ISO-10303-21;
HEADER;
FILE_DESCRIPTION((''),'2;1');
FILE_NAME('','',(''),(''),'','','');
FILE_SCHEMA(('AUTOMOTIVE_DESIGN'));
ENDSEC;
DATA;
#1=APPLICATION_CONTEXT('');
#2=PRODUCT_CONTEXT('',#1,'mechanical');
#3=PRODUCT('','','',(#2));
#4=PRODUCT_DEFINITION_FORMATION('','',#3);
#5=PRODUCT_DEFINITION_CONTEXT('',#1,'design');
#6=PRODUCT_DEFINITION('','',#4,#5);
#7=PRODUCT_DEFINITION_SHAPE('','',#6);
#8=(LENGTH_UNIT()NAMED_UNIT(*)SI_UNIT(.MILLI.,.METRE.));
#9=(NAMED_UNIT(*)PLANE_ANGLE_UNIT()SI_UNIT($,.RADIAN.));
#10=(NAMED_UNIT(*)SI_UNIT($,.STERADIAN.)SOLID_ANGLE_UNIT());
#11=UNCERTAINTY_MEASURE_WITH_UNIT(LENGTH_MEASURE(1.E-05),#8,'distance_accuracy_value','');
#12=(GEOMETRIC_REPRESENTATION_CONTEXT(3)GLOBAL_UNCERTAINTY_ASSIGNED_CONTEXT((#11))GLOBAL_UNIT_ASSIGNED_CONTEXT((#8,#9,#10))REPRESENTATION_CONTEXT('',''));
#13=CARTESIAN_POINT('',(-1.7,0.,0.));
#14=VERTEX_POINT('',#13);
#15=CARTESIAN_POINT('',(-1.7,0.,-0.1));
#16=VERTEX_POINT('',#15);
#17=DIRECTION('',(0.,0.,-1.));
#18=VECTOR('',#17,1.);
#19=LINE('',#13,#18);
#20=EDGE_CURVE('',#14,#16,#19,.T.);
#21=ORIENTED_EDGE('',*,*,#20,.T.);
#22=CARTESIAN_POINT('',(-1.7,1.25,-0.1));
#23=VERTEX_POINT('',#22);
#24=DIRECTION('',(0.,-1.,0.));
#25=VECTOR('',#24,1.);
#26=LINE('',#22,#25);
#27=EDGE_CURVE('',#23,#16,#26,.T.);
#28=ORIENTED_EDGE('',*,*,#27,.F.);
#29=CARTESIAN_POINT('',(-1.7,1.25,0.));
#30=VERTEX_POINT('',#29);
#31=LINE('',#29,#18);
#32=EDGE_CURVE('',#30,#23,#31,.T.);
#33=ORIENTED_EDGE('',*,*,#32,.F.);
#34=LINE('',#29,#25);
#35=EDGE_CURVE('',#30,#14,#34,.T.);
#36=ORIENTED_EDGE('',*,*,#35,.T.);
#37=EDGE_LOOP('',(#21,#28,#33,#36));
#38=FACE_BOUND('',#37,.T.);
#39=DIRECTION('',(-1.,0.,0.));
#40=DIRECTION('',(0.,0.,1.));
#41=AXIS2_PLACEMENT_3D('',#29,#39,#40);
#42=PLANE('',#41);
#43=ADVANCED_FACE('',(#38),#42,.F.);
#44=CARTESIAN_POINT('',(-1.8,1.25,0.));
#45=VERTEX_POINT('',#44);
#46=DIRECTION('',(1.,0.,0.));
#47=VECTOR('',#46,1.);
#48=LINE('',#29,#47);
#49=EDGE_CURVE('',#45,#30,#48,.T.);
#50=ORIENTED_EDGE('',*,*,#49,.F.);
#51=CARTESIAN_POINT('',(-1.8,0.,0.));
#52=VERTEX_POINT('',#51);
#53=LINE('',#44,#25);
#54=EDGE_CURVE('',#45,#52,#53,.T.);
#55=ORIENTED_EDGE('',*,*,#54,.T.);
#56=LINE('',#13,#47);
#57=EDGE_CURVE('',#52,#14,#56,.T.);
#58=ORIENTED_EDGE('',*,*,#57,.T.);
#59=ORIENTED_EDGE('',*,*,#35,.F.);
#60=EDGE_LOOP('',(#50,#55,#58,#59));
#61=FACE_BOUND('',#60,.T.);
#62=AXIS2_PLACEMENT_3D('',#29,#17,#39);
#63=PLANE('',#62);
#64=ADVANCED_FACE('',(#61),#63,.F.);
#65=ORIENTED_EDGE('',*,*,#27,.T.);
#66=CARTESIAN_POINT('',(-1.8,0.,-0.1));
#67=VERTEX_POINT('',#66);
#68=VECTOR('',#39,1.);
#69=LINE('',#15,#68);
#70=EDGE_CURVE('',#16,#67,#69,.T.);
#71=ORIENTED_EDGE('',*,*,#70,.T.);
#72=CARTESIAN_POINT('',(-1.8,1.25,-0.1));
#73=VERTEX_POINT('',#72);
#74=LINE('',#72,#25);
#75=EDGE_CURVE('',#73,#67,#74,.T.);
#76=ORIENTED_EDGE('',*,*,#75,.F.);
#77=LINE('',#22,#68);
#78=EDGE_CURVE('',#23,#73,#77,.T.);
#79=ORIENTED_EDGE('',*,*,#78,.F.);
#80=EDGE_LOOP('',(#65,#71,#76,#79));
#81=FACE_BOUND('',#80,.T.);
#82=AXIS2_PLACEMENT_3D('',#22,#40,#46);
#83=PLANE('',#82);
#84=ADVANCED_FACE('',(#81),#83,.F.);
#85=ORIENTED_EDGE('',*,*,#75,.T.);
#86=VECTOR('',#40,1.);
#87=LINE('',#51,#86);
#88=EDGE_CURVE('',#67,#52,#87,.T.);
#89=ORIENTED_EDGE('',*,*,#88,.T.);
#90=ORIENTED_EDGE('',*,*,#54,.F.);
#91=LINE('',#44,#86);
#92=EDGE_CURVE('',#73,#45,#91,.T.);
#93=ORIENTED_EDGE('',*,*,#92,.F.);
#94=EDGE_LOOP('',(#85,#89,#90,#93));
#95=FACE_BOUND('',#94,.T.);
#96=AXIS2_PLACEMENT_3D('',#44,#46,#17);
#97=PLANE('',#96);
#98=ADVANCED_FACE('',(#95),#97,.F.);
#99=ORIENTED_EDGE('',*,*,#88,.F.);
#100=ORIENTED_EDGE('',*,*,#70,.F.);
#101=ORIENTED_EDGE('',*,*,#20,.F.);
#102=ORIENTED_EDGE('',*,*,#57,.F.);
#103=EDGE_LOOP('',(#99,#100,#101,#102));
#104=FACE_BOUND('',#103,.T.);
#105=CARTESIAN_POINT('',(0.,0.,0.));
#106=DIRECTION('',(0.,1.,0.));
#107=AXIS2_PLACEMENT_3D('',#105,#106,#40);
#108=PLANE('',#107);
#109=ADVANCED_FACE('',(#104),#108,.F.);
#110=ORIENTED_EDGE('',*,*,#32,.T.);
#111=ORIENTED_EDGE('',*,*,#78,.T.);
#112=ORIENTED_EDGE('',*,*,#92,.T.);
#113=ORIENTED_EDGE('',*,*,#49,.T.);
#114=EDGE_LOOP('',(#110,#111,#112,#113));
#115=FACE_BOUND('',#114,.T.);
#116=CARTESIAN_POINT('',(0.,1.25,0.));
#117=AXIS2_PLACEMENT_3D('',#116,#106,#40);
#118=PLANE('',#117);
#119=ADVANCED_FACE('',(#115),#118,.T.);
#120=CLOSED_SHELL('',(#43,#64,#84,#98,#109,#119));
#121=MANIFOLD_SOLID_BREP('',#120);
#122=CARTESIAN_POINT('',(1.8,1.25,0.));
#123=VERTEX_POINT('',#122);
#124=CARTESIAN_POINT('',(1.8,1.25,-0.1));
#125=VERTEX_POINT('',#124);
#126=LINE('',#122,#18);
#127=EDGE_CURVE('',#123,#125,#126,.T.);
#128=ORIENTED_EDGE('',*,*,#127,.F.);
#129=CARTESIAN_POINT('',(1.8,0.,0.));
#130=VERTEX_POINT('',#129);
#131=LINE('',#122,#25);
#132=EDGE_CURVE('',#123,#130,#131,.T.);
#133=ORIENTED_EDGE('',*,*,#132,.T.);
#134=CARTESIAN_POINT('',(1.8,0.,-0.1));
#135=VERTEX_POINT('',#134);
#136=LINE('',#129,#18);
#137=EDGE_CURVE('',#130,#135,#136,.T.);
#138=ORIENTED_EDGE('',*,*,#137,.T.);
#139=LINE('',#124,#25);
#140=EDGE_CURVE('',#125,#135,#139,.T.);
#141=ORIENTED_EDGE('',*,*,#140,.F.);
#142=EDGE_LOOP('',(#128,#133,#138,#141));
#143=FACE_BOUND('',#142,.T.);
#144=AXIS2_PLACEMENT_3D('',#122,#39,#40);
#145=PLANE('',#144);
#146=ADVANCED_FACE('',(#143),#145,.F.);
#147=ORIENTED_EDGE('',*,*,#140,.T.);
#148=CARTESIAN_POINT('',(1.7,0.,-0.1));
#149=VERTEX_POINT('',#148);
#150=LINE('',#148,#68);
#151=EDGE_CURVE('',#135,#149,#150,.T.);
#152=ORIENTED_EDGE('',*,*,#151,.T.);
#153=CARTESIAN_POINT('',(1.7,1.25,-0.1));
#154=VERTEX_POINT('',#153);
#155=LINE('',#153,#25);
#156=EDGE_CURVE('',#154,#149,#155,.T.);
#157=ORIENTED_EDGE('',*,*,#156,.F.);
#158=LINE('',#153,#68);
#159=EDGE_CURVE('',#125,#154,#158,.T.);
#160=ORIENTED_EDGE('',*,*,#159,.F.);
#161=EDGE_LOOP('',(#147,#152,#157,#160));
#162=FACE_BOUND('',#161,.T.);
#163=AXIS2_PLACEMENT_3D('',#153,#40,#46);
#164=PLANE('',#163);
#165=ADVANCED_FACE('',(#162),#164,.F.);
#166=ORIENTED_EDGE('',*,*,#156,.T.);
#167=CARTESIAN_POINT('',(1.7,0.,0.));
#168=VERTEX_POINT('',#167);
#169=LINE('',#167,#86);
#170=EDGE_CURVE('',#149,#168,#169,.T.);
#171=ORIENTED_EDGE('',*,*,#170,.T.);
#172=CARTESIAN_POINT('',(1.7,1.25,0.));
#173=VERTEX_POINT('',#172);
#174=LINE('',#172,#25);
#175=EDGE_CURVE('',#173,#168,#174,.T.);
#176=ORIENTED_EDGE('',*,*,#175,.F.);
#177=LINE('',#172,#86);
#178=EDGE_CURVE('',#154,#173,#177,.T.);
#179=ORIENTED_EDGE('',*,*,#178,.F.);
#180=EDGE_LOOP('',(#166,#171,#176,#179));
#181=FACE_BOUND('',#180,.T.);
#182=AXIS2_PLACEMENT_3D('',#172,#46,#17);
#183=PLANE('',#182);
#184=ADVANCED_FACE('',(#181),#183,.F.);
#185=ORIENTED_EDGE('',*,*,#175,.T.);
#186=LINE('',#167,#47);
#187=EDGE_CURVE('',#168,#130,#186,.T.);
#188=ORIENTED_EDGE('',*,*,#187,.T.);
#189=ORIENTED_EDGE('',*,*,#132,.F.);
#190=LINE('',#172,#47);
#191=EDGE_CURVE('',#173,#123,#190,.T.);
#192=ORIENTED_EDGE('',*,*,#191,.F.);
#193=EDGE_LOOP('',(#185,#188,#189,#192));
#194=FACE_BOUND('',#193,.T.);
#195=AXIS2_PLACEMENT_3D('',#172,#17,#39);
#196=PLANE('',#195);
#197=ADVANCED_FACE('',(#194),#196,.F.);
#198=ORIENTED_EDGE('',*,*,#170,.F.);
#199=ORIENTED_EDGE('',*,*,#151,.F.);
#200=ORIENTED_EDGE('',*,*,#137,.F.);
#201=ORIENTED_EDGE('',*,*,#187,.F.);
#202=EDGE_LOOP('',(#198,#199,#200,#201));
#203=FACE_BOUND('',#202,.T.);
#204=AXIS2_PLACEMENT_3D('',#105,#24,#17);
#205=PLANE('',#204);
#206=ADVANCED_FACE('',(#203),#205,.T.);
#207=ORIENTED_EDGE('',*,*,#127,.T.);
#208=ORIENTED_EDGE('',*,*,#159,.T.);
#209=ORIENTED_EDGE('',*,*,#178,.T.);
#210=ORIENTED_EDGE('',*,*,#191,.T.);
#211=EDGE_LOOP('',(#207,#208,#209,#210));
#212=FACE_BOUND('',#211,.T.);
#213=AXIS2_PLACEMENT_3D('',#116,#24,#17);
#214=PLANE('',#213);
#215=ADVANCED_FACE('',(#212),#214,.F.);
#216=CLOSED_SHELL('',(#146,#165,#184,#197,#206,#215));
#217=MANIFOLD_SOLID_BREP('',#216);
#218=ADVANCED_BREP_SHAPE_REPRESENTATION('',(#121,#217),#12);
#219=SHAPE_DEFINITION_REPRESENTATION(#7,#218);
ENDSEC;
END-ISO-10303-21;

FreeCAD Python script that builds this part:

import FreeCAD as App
import Part
import Sketcher
from FreeCAD import Vector

doc = App.newDocument("Part")
body = doc.addObject("PartDesign::Body", "Body")

# Sketch on XZ plane
sketch1 = body.newObject("Sketcher::SketchObject", "Sketch")
sketch1.AttachmentSupport = (doc.getObject("XZ_Plane"), [""])
sketch1.MapMode = "FlatFace"
sketch1.addGeometry([
    Part.LineSegment(Vector(-1.8, -0.1, 0), Vector(-1.8, 0, 0)),
    Part.LineSegment(Vector(-1.8, 0, 0), Vector(-1.7, 0, 0)),
    Part.LineSegment(Vector(-1.7, 0, 0), Vector(-1.7, -0.1, 0)),
    Part.LineSegment(Vector(-1.7, -0.1, 0), Vector(-1.8, -0.1, 0)),
], False)
sketch1.addConstraint([
    Sketcher.Constraint("Coincident", 0, 2, 1, 1),
    Sketcher.Constraint("Coincident", 1, 2, 2, 1),
    Sketcher.Constraint("Coincident", 2, 2, 3, 1),
    Sketcher.Constraint("Coincident", 3, 2, 0, 1),
    Sketcher.Constraint("Vertical", 0),
    Sketcher.Constraint("Horizontal", 1),
    Sketcher.Constraint("Vertical", 2),
    Sketcher.Constraint("Horizontal", 3),
    Sketcher.Constraint("PointOnObject", 0, 2, -1),
    Sketcher.Constraint("Equal", 3, 0),
    Sketcher.Constraint("DistanceX", 1, 1, 1, 2, 0.1),
    Sketcher.Constraint("DistanceX", 0, 2, -1, 1, 1.8),
])
pad1 = body.newObject("PartDesign::Pad", "Pad")
pad1.Profile = sketch1
pad1.Length = 1.25
pad1.Reversed = True
body2 = doc.addObject("PartDesign::Body", "Body001")

# Sketch on XZ plane
sketch2 = body2.newObject("Sketcher::SketchObject", "Sketch001")
sketch2.AttachmentSupport = (doc.getObject("XZ_Plane001"), [""])
sketch2.MapMode = "FlatFace"
sketch2.addGeometry([
    Part.LineSegment(Vector(1.7, -0.1, 0), Vector(1.7, 0, 0)),
    Part.LineSegment(Vector(1.7, 0, 0), Vector(1.8, 0, 0)),
    Part.LineSegment(Vector(1.8, 0, 0), Vector(1.8, -0.1, 0)),
    Part.LineSegment(Vector(1.8, -0.1, 0), Vector(1.7, -0.1, 0)),
], False)
sketch2.addConstraint([
    Sketcher.Constraint("Coincident", 0, 2, 1, 1),
    Sketcher.Constraint("Coincident", 1, 2, 2, 1),
    Sketcher.Constraint("Coincident", 2, 2, 3, 1),
    Sketcher.Constraint("Coincident", 3, 2, 0, 1),
    Sketcher.Constraint("Vertical", 0),
    Sketcher.Constraint("Horizontal", 1),
    Sketcher.Constraint("Vertical", 2),
    Sketcher.Constraint("Horizontal", 3),
    Sketcher.Constraint("PointOnObject", 0, 2, -1),
    Sketcher.Constraint("Equal", 3, 0),
    Sketcher.Constraint("DistanceX", 1, 1, 1, 2, 0.1),
    Sketcher.Constraint("DistanceX", -1, 1, 0, 2, 1.7),
])
pad2 = body2.newObject("PartDesign::Pad", "Pad001")
pad2.Profile = sketch2
pad2.Length = 1.25
pad2.Reversed = True

doc.recompute()
